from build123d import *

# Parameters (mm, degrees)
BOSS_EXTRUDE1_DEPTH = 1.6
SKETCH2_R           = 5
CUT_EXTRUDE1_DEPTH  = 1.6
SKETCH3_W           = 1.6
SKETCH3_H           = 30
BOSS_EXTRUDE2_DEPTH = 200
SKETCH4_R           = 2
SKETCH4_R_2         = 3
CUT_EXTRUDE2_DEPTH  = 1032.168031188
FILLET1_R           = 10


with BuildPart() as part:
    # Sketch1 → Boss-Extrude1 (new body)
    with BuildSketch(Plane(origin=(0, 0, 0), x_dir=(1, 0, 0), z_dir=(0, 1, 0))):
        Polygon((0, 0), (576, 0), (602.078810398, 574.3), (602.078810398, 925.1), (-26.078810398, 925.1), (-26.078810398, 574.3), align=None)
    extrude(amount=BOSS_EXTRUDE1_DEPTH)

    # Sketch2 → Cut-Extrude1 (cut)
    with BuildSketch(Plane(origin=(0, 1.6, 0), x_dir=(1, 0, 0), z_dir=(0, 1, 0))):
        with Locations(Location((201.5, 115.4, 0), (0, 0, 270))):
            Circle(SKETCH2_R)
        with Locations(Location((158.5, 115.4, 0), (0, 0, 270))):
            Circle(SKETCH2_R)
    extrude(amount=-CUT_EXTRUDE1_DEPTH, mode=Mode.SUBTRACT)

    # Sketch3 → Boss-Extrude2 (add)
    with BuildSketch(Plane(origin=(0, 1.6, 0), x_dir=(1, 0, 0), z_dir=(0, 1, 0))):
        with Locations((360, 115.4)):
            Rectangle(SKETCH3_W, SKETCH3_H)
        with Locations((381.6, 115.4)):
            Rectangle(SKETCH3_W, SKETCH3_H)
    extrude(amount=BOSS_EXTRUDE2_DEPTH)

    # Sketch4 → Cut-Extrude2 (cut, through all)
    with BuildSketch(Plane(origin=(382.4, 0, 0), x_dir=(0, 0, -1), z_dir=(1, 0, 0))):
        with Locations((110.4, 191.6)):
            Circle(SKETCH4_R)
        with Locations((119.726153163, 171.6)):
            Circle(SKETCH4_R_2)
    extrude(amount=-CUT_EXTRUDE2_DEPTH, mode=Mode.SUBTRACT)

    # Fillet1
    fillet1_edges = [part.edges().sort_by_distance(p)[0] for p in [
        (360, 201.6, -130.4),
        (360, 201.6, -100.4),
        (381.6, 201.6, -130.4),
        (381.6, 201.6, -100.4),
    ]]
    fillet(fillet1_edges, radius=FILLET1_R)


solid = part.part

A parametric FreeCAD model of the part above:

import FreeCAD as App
import Part
import Sketcher
Q = App.Units.Quantity


def edges_at(feature, points):
    """Names of the edges that pass closest to the given points."""
    edges = feature.Shape.Edges
    near = lambda p: min(range(len(edges)), key=lambda i: edges[i].distToShape(Part.Vertex(*p))[0])
    return sorted({f"Edge{near(p) + 1}" for p in points})


def add_polygon(sketch, points):
    """Adds a closed chain of lines whose ends are joined by coincident constraints."""
    first, n = sketch.GeometryCount, len(points)
    for a, b in zip(points, points[1:] + points[:1]):
        sketch.addGeometry(Part.LineSegment(App.Vector(*a, 0), App.Vector(*b, 0)), False)
    for i in range(n):
        sketch.addConstraint(Sketcher.Constraint("Coincident", first + i, 2, first + (i + 1) % n, 1))

doc = App.newDocument("Part")
body = doc.addObject("PartDesign::Body", "Body")

sketch1 = body.newObject("Sketcher::SketchObject", "Sketch")
sketch1.AttachmentSupport = (doc.getObject("XZ_Plane"), [""])
sketch1.MapMode = "FlatFace"
add_polygon(sketch1, [(0, 0), (576, 0), (602, -574), (602, -925), (-26, -925), (-26, -574)])
sketch1.addConstraint([
    Sketcher.Constraint("Horizontal", 0),
    Sketcher.Constraint("Vertical", 2),
    Sketcher.Constraint("Horizontal", 3),
    Sketcher.Constraint("Vertical", 4),
    Sketcher.Constraint("Coincident", 5, 2, -1, 1),
    Sketcher.Constraint("Horizontal", 1, 2, 4, 2),
    Sketcher.Constraint("Equal", 1, 5),
    Sketcher.Constraint("DistanceX", 0, 1, 0, 2, 576.0),
    Sketcher.Constraint("DistanceY", 2, 2, 2, 1, 350.8),
    Sketcher.Constraint("Angle", 1, Q("-87.4 deg")),
    Sketcher.Constraint("DistanceY", 1, 2, -1, 1, 574.3),
])
pad1 = body.newObject("PartDesign::Pad", "Pad")
pad1.Profile = sketch1
pad1.Length = 1.6
pad1.Reversed = True

sketch2 = body.newObject("Sketcher::SketchObject", "Sketch001")
sketch2.AttachmentSupport = (doc.getObject("XZ_Plane"), [""])
sketch2.MapMode = "FlatFace"
sketch2.AttachmentOffset = App.Placement(App.Vector(0, 0, -1.6), App.Rotation())
sketch2.addGeometry([
    Part.Circle(App.Vector(202, -115, 0), App.Vector(0, 0, 1), 5),
    Part.Circle(App.Vector(158, -115, 0), App.Vector(0, 0, 1), 5),
], False)
sketch2.addConstraint([
    Sketcher.Constraint("Equal", 0, 1),
    Sketcher.Constraint("Horizontal", 0, 3, 1, 3),
    Sketcher.Constraint("Diameter", 0, 10.0),
    Sketcher.Constraint("DistanceX", 1, 3, 0, 3, 43.0),
    Sketcher.Constraint("DistanceX", -1, 1, 0, 3, 201.5),
    Sketcher.Constraint("DistanceY", 0, 3, -1, 1, 115.4),
])
pocket1 = body.newObject("PartDesign::Pocket", "Pocket")
pocket1.Profile = sketch2
pocket1.Length = 1.6
pocket1.Reversed = True

sketch3 = body.newObject("Sketcher::SketchObject", "Sketch002")
sketch3.AttachmentSupport = (doc.getObject("XZ_Plane"), [""])
sketch3.MapMode = "FlatFace"
sketch3.AttachmentOffset = App.Placement(App.Vector(0, 0, -1.6), App.Rotation())
add_polygon(sketch3, [(359.2, -130.4), (359.2, -100.4), (360.8, -100.4), (360.8, -130.4)])
add_polygon(sketch3, [(380.8, -130.4), (380.8, -100.4), (382.4, -100.4), (382.4, -130.4)])
sketch3.addConstraint([
    Sketcher.Constraint("Vertical", 0),
    Sketcher.Constraint("Horizontal", 1),
    Sketcher.Constraint("Vertical", 2),
    Sketcher.Constraint("Horizontal", 3),
    Sketcher.Constraint("Vertical", 4),
    Sketcher.Constraint("Horizontal", 5),
    Sketcher.Constraint("Vertical", 6),
    Sketcher.Constraint("Horizontal", 7),
    Sketcher.Constraint("Horizontal", 1, 2, 4, 2),
    Sketcher.Constraint("Horizontal", 3, 2, 6, 2),
    Sketcher.Constraint("Equal", 3, 5),
    Sketcher.Constraint("DistanceY", 0, 1, 0, 2, 30.0),
    Sketcher.Constraint("DistanceX", 1, 1, 1, 2, 1.6),
    Sketcher.Constraint("DistanceX", 1, 2, 4, 2, 20.0),
    Sketcher.Constraint("DistanceX", -1, 1, 0, 2, 359.2),
    Sketcher.Constraint("DistanceY", 0, 2, -1, 1, 100.4),
])
pad2 = body.newObject("PartDesign::Pad", "Pad001")
pad2.Profile = sketch3
pad2.Length = 200
pad2.Reversed = True

sketch4 = body.newObject("Sketcher::SketchObject", "Sketch003")
sketch4.AttachmentSupport = (doc.getObject("YZ_Plane"), [""])
sketch4.MapMode = "FlatFace"
sketch4.AttachmentOffset = App.Placement(App.Vector(0, 0, 382.4), App.Rotation())
sketch4.addGeometry([
    Part.Circle(App.Vector(191.6, -110.4, 0), App.Vector(0, 0, 1), 2),
    Part.Circle(App.Vector(171.6, -119.7, 0), App.Vector(0, 0, 1), 3),
], False)
sketch4.addConstraint([
    Sketcher.Constraint("Diameter", 0, 4.0),
    Sketcher.Constraint("Diameter", 1, 6.0),
    Sketcher.Constraint("DistanceX", 1, 3, 0, 3, 20.0),
    Sketcher.Constraint("DistanceX", -1, 1, 0, 3, 191.6),
    Sketcher.Constraint("DistanceY", 0, 3, -1, 1, 110.4),
    Sketcher.Constraint("DistanceY", 1, 3, -1, 1, 119.726153),
])
pocket2 = body.newObject("PartDesign::Pocket", "Pocket001")
pocket2.Profile = sketch4
pocket2.Type = "ThroughAll"
doc.recompute()

fillet = body.newObject("PartDesign::Fillet", "Fillet")
fillet.Base = (pocket2, edges_at(pocket2, [
    (360, 201.6, -130.4),
    (360, 201.6, -100.4),
    (381.6, 201.6, -130.4),
    (381.6, 201.6, -100.4),
]))
fillet.Radius = 10

doc.recompute()
